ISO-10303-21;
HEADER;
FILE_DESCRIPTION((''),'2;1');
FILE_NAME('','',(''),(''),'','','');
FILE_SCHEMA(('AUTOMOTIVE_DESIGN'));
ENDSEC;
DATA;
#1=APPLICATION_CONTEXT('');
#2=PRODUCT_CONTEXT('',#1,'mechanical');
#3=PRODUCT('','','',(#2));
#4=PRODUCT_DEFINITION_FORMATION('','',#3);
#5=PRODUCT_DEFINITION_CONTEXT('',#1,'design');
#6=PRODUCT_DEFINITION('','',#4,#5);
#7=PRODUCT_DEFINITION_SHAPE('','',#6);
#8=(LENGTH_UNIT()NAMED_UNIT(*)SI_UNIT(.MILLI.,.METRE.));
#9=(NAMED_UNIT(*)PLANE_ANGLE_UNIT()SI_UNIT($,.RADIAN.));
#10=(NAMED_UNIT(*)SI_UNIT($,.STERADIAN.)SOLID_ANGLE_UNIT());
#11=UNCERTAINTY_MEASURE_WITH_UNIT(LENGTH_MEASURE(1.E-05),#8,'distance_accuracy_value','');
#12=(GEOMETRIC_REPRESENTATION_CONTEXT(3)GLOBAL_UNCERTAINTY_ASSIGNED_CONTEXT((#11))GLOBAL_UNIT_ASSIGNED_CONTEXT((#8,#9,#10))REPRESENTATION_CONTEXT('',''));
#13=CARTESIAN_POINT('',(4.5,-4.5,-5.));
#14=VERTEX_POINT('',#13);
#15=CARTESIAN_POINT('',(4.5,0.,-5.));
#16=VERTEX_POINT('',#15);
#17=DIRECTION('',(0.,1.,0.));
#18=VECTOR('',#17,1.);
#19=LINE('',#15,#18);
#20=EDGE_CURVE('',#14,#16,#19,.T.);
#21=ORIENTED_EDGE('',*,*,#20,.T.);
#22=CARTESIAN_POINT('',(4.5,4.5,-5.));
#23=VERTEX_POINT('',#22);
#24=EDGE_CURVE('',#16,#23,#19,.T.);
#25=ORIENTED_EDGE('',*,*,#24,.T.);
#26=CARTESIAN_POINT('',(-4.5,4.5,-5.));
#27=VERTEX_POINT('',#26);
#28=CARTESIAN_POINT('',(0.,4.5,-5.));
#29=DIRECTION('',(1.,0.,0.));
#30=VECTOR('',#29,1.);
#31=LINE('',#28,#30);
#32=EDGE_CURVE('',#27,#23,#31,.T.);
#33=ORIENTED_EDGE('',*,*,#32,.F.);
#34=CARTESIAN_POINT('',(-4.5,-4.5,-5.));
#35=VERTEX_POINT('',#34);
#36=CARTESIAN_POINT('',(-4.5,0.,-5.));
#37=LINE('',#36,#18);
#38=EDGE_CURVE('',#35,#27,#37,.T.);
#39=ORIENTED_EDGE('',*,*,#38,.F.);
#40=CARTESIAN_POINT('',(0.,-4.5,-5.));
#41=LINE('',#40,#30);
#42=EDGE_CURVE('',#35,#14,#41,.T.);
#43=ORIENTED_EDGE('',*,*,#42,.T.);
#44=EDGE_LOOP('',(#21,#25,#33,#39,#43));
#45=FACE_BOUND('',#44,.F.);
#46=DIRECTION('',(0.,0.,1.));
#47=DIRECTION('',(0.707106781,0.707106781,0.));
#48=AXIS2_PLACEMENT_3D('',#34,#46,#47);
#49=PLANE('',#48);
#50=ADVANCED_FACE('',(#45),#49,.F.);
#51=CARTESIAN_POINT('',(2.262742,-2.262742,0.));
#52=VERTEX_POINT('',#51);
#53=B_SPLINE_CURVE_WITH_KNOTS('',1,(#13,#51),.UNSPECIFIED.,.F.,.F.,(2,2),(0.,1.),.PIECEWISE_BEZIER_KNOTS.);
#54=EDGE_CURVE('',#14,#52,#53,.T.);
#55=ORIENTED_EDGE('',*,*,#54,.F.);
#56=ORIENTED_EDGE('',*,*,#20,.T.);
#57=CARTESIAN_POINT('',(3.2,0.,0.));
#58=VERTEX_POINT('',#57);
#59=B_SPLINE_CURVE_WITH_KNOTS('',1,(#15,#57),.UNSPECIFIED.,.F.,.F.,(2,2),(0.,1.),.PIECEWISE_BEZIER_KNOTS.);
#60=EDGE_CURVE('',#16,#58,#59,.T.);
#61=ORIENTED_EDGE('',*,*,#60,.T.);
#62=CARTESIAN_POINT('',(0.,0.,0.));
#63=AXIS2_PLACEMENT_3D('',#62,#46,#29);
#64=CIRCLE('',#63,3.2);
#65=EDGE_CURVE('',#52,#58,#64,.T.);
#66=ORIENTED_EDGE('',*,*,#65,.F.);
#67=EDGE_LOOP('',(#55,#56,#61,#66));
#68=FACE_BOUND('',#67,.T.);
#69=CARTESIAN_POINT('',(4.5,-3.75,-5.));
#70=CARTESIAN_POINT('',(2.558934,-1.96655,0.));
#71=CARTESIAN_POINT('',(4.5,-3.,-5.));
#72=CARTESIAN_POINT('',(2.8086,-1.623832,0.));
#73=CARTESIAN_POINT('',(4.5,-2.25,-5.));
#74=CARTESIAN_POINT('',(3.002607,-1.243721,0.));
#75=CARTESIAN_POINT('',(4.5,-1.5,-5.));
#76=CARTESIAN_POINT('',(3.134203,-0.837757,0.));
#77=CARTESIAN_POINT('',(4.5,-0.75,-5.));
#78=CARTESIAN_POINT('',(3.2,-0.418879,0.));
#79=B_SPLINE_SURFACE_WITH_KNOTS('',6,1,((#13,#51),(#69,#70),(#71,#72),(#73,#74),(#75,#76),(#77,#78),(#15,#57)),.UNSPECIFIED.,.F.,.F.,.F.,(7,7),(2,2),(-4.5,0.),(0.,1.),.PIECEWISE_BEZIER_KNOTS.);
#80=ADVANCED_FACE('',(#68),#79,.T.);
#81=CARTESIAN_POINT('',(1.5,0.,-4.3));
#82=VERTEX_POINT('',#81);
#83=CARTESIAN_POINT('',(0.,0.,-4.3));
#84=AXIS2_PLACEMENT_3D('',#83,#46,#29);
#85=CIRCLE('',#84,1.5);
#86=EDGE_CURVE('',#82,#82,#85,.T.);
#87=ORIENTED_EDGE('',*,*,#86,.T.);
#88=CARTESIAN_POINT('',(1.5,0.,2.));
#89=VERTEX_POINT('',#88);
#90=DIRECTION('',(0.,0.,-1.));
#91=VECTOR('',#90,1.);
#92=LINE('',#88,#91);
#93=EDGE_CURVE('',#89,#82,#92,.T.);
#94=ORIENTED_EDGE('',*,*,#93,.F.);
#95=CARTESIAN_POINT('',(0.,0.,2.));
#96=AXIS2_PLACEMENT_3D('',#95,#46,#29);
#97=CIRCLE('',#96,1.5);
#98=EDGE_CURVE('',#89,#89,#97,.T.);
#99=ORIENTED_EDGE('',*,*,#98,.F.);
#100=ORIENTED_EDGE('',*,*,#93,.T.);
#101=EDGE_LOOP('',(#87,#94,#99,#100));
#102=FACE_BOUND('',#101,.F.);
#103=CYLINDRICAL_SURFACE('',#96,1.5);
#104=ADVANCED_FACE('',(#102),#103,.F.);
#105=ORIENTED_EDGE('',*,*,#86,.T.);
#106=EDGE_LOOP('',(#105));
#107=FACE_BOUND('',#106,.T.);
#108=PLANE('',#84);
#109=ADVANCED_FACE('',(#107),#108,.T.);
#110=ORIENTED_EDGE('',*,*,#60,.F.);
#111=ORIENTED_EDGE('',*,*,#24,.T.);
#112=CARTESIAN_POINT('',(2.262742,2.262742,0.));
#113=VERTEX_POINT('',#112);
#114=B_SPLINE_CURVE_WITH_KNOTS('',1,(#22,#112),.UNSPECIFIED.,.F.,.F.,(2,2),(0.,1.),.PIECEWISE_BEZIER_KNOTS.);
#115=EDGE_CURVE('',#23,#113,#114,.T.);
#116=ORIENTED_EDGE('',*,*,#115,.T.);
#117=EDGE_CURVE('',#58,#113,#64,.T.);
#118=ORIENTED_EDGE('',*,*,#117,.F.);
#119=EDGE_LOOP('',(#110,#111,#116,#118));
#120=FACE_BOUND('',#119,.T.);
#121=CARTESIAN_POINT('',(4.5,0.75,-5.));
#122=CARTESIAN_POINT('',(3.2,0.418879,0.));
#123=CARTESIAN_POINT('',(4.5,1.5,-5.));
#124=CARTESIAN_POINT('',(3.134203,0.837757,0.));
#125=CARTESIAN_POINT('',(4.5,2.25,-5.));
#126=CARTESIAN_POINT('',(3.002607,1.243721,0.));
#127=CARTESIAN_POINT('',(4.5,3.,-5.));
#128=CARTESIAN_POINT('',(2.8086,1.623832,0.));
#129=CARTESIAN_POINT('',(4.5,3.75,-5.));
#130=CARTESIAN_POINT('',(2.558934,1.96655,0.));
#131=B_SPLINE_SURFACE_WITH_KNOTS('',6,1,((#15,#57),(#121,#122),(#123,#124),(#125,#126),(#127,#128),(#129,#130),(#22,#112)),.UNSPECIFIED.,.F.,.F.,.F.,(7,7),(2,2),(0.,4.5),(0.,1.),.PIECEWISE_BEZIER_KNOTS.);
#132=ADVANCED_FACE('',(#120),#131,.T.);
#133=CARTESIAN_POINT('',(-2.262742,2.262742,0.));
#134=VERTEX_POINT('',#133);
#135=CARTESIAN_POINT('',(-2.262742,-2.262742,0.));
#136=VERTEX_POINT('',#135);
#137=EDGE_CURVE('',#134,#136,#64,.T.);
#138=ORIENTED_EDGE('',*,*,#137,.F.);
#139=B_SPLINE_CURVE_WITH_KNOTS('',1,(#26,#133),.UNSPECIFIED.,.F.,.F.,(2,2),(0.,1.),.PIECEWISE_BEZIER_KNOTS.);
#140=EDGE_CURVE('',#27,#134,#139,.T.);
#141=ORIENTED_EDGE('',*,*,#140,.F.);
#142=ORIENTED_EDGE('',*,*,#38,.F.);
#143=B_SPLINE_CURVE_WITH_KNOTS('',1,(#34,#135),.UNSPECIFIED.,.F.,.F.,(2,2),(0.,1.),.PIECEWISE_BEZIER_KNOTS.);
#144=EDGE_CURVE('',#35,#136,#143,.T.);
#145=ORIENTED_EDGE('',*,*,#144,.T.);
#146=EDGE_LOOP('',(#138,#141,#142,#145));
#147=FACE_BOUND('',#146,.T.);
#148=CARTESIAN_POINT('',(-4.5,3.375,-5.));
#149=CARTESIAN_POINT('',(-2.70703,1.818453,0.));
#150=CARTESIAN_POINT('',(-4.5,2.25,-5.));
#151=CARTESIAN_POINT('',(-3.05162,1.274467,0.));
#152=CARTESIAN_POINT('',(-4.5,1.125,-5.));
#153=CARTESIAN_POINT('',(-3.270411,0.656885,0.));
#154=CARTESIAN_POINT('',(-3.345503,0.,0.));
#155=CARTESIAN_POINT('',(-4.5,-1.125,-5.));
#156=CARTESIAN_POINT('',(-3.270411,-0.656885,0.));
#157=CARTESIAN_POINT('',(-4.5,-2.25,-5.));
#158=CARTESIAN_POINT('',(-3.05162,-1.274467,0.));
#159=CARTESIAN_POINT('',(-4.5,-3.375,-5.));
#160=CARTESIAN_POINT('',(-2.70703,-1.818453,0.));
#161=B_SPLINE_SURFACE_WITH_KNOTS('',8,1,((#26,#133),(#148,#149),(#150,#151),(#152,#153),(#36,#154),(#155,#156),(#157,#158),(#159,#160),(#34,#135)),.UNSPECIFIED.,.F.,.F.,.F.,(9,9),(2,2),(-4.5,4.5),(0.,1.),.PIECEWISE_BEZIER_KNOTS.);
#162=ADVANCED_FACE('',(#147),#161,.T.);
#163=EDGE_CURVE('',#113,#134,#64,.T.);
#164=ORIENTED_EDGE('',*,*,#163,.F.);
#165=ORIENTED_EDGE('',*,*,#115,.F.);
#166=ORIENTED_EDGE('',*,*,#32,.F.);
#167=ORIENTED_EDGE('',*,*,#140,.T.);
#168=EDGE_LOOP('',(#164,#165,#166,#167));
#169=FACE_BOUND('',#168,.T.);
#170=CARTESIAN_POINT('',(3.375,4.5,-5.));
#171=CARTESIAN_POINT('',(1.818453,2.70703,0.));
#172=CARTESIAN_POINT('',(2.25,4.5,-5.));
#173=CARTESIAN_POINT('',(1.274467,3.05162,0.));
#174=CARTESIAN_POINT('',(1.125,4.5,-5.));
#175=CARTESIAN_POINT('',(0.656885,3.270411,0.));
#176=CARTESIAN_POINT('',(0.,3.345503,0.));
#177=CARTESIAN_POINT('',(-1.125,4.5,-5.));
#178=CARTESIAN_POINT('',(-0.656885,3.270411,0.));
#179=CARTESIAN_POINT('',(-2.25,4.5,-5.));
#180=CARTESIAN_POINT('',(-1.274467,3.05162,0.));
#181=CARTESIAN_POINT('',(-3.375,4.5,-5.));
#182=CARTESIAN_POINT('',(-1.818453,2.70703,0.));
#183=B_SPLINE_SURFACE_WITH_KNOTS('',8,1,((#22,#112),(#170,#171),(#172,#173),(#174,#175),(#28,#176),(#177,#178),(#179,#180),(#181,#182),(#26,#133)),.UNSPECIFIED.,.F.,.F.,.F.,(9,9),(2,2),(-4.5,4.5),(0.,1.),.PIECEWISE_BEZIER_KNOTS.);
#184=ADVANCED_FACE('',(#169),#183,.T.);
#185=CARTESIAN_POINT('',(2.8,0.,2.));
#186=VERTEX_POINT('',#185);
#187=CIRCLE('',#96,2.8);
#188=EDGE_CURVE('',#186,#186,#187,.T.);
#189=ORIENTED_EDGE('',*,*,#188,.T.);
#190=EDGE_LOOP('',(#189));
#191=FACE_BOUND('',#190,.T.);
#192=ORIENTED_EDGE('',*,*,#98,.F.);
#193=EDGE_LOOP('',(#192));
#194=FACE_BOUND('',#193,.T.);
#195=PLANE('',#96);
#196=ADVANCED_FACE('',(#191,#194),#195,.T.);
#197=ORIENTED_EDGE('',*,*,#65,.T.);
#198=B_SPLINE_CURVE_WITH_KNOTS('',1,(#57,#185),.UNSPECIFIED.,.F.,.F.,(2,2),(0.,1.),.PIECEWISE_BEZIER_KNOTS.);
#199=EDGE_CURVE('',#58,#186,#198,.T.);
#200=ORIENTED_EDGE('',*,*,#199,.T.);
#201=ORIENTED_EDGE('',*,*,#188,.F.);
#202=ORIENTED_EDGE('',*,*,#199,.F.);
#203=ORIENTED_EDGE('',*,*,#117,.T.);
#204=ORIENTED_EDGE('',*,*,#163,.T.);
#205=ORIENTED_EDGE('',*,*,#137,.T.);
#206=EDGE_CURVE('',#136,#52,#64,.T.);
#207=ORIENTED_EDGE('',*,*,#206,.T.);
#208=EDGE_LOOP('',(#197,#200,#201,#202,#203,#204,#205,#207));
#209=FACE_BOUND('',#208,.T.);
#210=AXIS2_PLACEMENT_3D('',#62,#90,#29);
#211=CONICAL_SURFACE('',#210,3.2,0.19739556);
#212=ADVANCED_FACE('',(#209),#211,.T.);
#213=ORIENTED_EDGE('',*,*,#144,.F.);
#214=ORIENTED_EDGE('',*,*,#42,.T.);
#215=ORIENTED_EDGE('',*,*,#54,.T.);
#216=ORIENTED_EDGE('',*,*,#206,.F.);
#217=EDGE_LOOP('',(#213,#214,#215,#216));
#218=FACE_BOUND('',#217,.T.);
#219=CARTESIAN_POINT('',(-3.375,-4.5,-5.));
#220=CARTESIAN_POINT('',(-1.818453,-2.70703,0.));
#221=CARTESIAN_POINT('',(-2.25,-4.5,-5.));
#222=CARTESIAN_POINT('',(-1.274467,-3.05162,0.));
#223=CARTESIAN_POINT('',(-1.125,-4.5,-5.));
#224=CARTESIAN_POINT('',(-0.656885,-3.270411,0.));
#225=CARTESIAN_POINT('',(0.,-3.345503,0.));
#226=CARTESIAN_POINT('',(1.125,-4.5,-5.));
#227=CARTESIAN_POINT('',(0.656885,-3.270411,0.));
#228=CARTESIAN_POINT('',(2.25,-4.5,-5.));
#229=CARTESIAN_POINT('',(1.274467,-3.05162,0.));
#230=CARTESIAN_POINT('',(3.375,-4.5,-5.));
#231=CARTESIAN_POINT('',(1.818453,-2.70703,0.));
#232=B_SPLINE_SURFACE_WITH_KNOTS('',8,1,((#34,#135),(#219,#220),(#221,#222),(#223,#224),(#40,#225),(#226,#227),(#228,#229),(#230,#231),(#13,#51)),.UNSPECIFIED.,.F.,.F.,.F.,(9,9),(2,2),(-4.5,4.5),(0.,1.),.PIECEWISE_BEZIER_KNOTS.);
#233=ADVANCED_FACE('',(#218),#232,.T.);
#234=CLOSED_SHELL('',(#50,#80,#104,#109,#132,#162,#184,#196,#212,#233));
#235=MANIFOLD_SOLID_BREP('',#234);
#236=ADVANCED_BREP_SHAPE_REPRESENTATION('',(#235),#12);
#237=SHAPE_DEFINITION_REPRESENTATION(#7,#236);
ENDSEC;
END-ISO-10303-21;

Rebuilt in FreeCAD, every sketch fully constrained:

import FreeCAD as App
import Part
import Sketcher

V = App.Vector
Q = App.Units.Quantity

doc = App.newDocument("Part")
body = doc.addObject("PartDesign::Body", "Body")

# Sketch on XY plane
sketch1 = body.newObject("Sketcher::SketchObject", "Sketch")
sketch1.AttachmentSupport = (doc.getObject("XY_Plane"), [""])
sketch1.MapMode = "FlatFace"
sketch1.AttachmentOffset = App.Placement(V(0, 0, -5), App.Rotation())
sketch1.addGeometry(Part.LineSegment(V(-4.5, 4.5, 0), V(-4.5, -4.5, 0)), False)
sketch1.addGeometry(Part.LineSegment(V(-4.5, -4.5, 0), V(4.5, -4.5, 0)), False)
sketch1.addGeometry(Part.LineSegment(V(4.5, -4.5, 0), V(4.5, 4.5, 0)), False)
sketch1.addGeometry(Part.LineSegment(V(4.5, 4.5, 0), V(-4.5, 4.5, 0)), False)
sketch1.addConstraint(Sketcher.Constraint("Coincident", 0, 2, 1, 1))
sketch1.addConstraint(Sketcher.Constraint("Coincident", 1, 2, 2, 1))
sketch1.addConstraint(Sketcher.Constraint("Coincident", 2, 2, 3, 1))
sketch1.addConstraint(Sketcher.Constraint("Coincident", 3, 2, 0, 1))
sketch1.addConstraint(Sketcher.Constraint("Vertical", 0))
sketch1.addConstraint(Sketcher.Constraint("Horizontal", 1))
sketch1.addConstraint(Sketcher.Constraint("Vertical", 2))
sketch1.addConstraint(Sketcher.Constraint("Horizontal", 3))
sketch1.addConstraint(Sketcher.Constraint("Symmetric", 0, 2, 2, 2, -1, 1))
sketch1.addConstraint(Sketcher.Constraint("Equal", 3, 0))
sketch1.addConstraint(Sketcher.Constraint("DistanceX", 1, 1, 1, 2, Q("9 mm")))

# Sketch on XY plane
sketch2 = body.newObject("Sketcher::SketchObject", "Sketch001")
sketch2.AttachmentSupport = (doc.getObject("XY_Plane"), [""])
sketch2.MapMode = "FlatFace"
sketch2.addGeometry(Part.Circle(V(0, 0, 0), V(0, 0, 1), 3.2), False)
sketch2.addConstraint(Sketcher.Constraint("Coincident", 0, 3, -1, 1))
sketch2.addConstraint(Sketcher.Constraint("Diameter", 0, Q("6.4 mm")))

additiveloft = body.newObject("PartDesign::AdditiveLoft", "AdditiveLoft")
additiveloft.Profile = sketch1
additiveloft.Sections = [sketch2]

# Sketch on XY plane
sketch3 = body.newObject("Sketcher::SketchObject", "Sketch002")
sketch3.AttachmentSupport = (doc.getObject("XY_Plane"), [""])
sketch3.MapMode = "FlatFace"
sketch3.addGeometry(Part.Circle(V(0, 0, 0), V(0, 0, 1), 3.2), False)
sketch3.addConstraint(Sketcher.Constraint("Coincident", 0, 3, -1, 1))
sketch3.addConstraint(Sketcher.Constraint("Diameter", 0, Q("6.4 mm")))

# Sketch on XY plane
sketch4 = body.newObject("Sketcher::SketchObject", "Sketch003")
sketch4.AttachmentSupport = (doc.getObject("XY_Plane"), [""])
sketch4.MapMode = "FlatFace"
sketch4.AttachmentOffset = App.Placement(V(0, 0, 2), App.Rotation())
sketch4.addGeometry(Part.Circle(V(0, 0, 0), V(0, 0, 1), 2.8), False)
sketch4.addConstraint(Sketcher.Constraint("Coincident", 0, 3, -1, 1))
sketch4.addConstraint(Sketcher.Constraint("Diameter", 0, Q("5.6 mm")))

additiveloft2 = body.newObject("PartDesign::AdditiveLoft", "AdditiveLoft001")
additiveloft2.Profile = sketch3
additiveloft2.Sections = [sketch4]

# Sketch on XY plane
sketch5 = body.newObject("Sketcher::SketchObject", "Sketch004")
sketch5.AttachmentSupport = (doc.getObject("XY_Plane"), [""])
sketch5.MapMode = "FlatFace"
sketch5.AttachmentOffset = App.Placement(V(0, 0, 2), App.Rotation())
sketch5.addGeometry(Part.Circle(V(0, 0, 0), V(0, 0, 1), 1.5), False)
sketch5.addConstraint(Sketcher.Constraint("Coincident", 0, 3, -1, 1))
sketch5.addConstraint(Sketcher.Constraint("Diameter", 0, Q("3 mm")))
pocket1 = body.newObject("PartDesign::Pocket", "Pocket")
pocket1.Profile = sketch5
pocket1.Length = 6.3

doc.recompute()
